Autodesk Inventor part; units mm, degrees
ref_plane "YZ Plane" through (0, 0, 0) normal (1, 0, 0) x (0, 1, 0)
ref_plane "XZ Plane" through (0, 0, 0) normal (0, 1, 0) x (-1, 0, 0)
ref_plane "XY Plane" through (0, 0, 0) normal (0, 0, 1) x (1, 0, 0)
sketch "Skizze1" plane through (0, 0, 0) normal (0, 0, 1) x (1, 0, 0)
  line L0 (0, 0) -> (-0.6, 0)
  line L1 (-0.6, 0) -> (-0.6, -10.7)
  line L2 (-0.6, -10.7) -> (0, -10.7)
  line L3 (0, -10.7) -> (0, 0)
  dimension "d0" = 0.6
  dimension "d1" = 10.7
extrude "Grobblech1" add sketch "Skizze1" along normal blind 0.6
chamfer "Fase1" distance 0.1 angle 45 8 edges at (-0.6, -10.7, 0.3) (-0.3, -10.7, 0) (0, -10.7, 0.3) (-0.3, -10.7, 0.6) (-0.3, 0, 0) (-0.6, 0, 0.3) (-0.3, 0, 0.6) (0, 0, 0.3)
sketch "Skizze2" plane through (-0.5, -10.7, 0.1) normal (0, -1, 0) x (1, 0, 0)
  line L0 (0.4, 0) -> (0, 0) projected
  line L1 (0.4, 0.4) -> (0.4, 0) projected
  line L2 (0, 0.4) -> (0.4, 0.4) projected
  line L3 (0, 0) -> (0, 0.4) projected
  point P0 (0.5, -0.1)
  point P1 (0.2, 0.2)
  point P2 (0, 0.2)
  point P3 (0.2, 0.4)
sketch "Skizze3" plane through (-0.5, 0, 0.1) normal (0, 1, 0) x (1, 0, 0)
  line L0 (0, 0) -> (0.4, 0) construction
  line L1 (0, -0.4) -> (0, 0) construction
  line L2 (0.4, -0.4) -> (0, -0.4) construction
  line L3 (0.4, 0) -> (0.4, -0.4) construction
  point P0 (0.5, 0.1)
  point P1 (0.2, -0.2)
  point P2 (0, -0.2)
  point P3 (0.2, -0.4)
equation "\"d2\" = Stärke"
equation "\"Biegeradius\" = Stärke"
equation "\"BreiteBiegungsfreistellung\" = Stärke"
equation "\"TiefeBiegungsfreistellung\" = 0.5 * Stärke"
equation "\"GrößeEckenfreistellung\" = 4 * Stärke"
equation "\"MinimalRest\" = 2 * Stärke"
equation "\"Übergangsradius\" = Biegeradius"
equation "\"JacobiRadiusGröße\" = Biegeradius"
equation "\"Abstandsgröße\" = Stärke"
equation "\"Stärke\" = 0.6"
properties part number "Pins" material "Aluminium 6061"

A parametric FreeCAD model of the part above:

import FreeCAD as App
import Part
import Sketcher
from FreeCAD import Vector


def edges_at(feature, points):
    """Names of the edges that pass closest to the given points."""
    edges = feature.Shape.Edges
    near = lambda p: min(range(len(edges)), key=lambda i: edges[i].distToShape(Part.Vertex(*p))[0])
    return sorted({f"Edge{near(p) + 1}" for p in points})


def add_polygon(sketch, points):
    """Adds a closed chain of lines whose ends are joined by coincident constraints."""
    first, n = sketch.GeometryCount, len(points)
    for a, b in zip(points, points[1:] + points[:1]):
        sketch.addGeometry(Part.LineSegment(App.Vector(*a, 0), App.Vector(*b, 0)), False)
    for i in range(n):
        sketch.addConstraint(Sketcher.Constraint("Coincident", first + i, 2, first + (i + 1) % n, 1))

doc = App.newDocument("Part")
body = doc.addObject("PartDesign::Body", "Body")

sketch1 = body.newObject("Sketcher::SketchObject", "Sketch")
sketch1.AttachmentSupport = (doc.getObject("XY_Plane"), [""])
sketch1.MapMode = "FlatFace"
add_polygon(sketch1, [(0, -10.7), (0, 0), (-0.6, 0), (-0.6, -10.7)])
sketch1.addConstraint([
    Sketcher.Constraint("Vertical", 0),
    Sketcher.Constraint("Horizontal", 1),
    Sketcher.Constraint("Vertical", 2),
    Sketcher.Constraint("Horizontal", 3),
    Sketcher.Constraint("Coincident", 0, 2, -1, 1),
    Sketcher.Constraint("DistanceX", 1, 2, 1, 1, 0.6),
    Sketcher.Constraint("DistanceY", 0, 1, 0, 2, 10.7),
])
pad1 = body.newObject("PartDesign::Pad", "Pad")
pad1.Profile = sketch1
pad1.Length = 0.6
doc.recompute()

chamfer = body.newObject("PartDesign::Chamfer", "Chamfer")
chamfer.Base = (pad1, edges_at(pad1, [
    (-0.6, -10.7, 0.3),
    (-0.3, -10.7, 0),
    (0, -10.7, 0.3),
    (-0.3, -10.7, 0.6),
    (-0.3, 0, 0),
    (-0.6, 0, 0.3),
    (-0.3, 0, 0.6),
    (0, 0, 0.3),
]))
chamfer.Size = 0.1

doc.recompute()
